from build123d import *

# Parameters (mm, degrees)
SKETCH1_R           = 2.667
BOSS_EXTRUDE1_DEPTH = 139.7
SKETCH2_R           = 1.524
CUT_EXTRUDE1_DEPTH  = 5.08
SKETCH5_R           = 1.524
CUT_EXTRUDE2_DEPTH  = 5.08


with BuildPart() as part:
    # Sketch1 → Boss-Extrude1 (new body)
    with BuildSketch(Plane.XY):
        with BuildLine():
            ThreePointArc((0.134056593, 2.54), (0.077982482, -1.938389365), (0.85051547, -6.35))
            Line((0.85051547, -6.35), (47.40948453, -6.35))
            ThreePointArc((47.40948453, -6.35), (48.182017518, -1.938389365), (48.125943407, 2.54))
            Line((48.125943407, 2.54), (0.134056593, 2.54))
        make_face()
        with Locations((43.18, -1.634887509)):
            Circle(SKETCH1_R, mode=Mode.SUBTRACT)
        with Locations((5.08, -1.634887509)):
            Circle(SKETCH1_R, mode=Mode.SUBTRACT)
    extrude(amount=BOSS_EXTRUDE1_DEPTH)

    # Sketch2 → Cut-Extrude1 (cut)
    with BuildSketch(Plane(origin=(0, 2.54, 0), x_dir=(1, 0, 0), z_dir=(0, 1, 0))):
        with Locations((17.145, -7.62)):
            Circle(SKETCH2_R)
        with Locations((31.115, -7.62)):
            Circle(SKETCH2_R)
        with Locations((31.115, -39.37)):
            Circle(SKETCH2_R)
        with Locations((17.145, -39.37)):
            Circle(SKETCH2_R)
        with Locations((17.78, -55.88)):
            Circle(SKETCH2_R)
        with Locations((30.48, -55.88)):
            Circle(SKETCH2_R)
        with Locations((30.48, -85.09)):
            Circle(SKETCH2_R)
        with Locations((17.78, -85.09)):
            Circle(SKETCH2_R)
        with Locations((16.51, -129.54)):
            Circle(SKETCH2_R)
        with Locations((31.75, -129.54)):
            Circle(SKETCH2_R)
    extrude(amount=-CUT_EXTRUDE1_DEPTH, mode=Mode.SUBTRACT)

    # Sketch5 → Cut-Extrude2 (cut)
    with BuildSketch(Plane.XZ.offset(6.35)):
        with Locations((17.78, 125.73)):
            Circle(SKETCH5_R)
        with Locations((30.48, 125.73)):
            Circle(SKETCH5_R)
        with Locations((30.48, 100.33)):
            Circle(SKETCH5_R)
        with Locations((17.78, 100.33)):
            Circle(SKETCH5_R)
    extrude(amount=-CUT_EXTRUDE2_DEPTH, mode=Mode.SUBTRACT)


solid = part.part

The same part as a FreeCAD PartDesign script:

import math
import FreeCAD as App
import Part
import Sketcher

V = App.Vector
Q = App.Units.Quantity

doc = App.newDocument("Part")
body = doc.addObject("PartDesign::Body", "Body")

# Sketch on XY plane
sketch1 = body.newObject("Sketcher::SketchObject", "Sketch")
sketch1.AttachmentSupport = (doc.getObject("XY_Plane"), [""])
sketch1.MapMode = "FlatFace"
sketch1.addGeometry(Part.ArcOfCircle(Part.Circle(V(24.1, 0, 0), V(0, 0, 1), 24.1), math.radians(174), math.radians(195)), False)
sketch1.addGeometry(Part.LineSegment(V(0.9, -6.3, 0), V(47.4, -6.3, 0)), False)
sketch1.addGeometry(Part.ArcOfCircle(Part.Circle(V(24.1, 0, 0), V(0, 0, 1), 24.1), math.radians(-15), math.radians(6)), False)
sketch1.addGeometry(Part.LineSegment(V(48.1, 2.5, 0), V(0.1, 2.5, 0)), False)
sketch1.addGeometry(Part.Circle(V(5.1, -1.6, 0), V(0, 0, 1), 2.7), False)
sketch1.addGeometry(Part.Circle(V(43.2, -1.6, 0), V(0, 0, 1), 2.7), False)
sketch1.addConstraint(Sketcher.Constraint("Coincident", 0, 2, 1, 1))
sketch1.addConstraint(Sketcher.Constraint("Coincident", 1, 2, 2, 1))
sketch1.addConstraint(Sketcher.Constraint("Coincident", 2, 2, 3, 1))
sketch1.addConstraint(Sketcher.Constraint("Coincident", 3, 2, 0, 1))
sketch1.addConstraint(Sketcher.Constraint("Horizontal", 1))
sketch1.addConstraint(Sketcher.Constraint("Horizontal", 3))
sketch1.addConstraint(Sketcher.Constraint("Coincident", 2, 3, 0, 3))
sketch1.addConstraint(Sketcher.Constraint("Equal", 0, 2))
sketch1.addConstraint(Sketcher.Constraint("Equal", 4, 5))
sketch1.addConstraint(Sketcher.Constraint("PointOnObject", 0, 3, -1))
sketch1.addConstraint(Sketcher.Constraint("Horizontal", 4, 3, 5, 3))
sketch1.addConstraint(Sketcher.Constraint("Diameter", 4, Q("0.21 in")))
sketch1.addConstraint(Sketcher.Constraint("Radius", 0, Q("0.95 in")))
sketch1.addConstraint(Sketcher.Constraint("DistanceX", -1, 1, 4, 3, Q("0.2 in")))
sketch1.addConstraint(Sketcher.Constraint("DistanceX", -1, 1, 5, 3, Q("1.7 in")))
sketch1.addConstraint(Sketcher.Constraint("DistanceY", -1, 1, 2, 2, Q("0.1 in")))
sketch1.addConstraint(Sketcher.Constraint("DistanceX", -1, 1, 0, 3, Q("0.95 in")))
sketch1.addConstraint(Sketcher.Constraint("DistanceY", 0, 2, -1, 1, Q("0.25 in")))
sketch1.addConstraint(Sketcher.Constraint("DistanceY", 4, 3, -1, 1, 1.634888))
pad1 = body.newObject("PartDesign::Pad", "Pad")
pad1.Profile = sketch1
pad1.Length = Q("5.5 in")

# Sketch on XZ plane
sketch2 = body.newObject("Sketcher::SketchObject", "Sketch001")
sketch2.AttachmentSupport = (doc.getObject("XZ_Plane"), [""])
sketch2.MapMode = "FlatFace"
sketch2.AttachmentOffset = App.Placement(V(0, 0, -0.1 * 25.4), App.Rotation())
sketch2.addGeometry(Part.Circle(V(17.1, 7.6, 0), V(0, 0, 1), 1.5), False)
sketch2.addGeometry(Part.Circle(V(31.1, 7.6, 0), V(0, 0, 1), 1.5), False)
sketch2.addGeometry(Part.Circle(V(31.1, 39.4, 0), V(0, 0, 1), 1.5), False)
sketch2.addGeometry(Part.Circle(V(17.1, 39.4, 0), V(0, 0, 1), 1.5), False)
sketch2.addGeometry(Part.Circle(V(17.8, 55.9, 0), V(0, 0, 1), 1.5), False)
sketch2.addGeometry(Part.Circle(V(30.5, 55.9, 0), V(0, 0, 1), 1.5), False)
sketch2.addGeometry(Part.Circle(V(30.5, 85.1, 0), V(0, 0, 1), 1.5), False)
sketch2.addGeometry(Part.Circle(V(17.8, 85.1, 0), V(0, 0, 1), 1.5), False)
sketch2.addGeometry(Part.Circle(V(16.5, 129.5, 0), V(0, 0, 1), 1.5), False)
sketch2.addGeometry(Part.Circle(V(31.8, 129.5, 0), V(0, 0, 1), 1.5), False)
sketch2.addConstraint(Sketcher.Constraint("Equal", 0, 1))
sketch2.addConstraint(Sketcher.Constraint("Equal", 1, 2))
sketch2.addConstraint(Sketcher.Constraint("Equal", 2, 3))
sketch2.addConstraint(Sketcher.Constraint("Equal", 3, 4))
sketch2.addConstraint(Sketcher.Constraint("Equal", 4, 5))
sketch2.addConstraint(Sketcher.Constraint("Equal", 5, 6))
sketch2.addConstraint(Sketcher.Constraint("Equal", 6, 7))
sketch2.addConstraint(Sketcher.Constraint("Equal", 7, 8))
sketch2.addConstraint(Sketcher.Constraint("Equal", 8, 9))
sketch2.addConstraint(Sketcher.Constraint("Horizontal", 0, 3, 1, 3))
sketch2.addConstraint(Sketcher.Constraint("Horizontal", 2, 3, 3, 3))
sketch2.addConstraint(Sketcher.Constraint("Horizontal", 4, 3, 5, 3))
sketch2.addConstraint(Sketcher.Constraint("Horizontal", 6, 3, 7, 3))
sketch2.addConstraint(Sketcher.Constraint("Horizontal", 8, 3, 9, 3))
sketch2.addConstraint(Sketcher.Constraint("Vertical", 1, 3, 2, 3))
sketch2.addConstraint(Sketcher.Constraint("Vertical", 0, 3, 3, 3))
sketch2.addConstraint(Sketcher.Constraint("Vertical", 5, 3, 6, 3))
sketch2.addConstraint(Sketcher.Constraint("Vertical", 4, 3, 7, 3))
sketch2.addConstraint(Sketcher.Constraint("Diameter", 0, Q("0.12 in")))
sketch2.addConstraint(Sketcher.Constraint("DistanceY", -1, 1, 0, 3, Q("0.3 in")))
sketch2.addConstraint(Sketcher.Constraint("DistanceX", -1, 1, 4, 3, Q("0.7 in")))
sketch2.addConstraint(Sketcher.Constraint("DistanceY", -1, 1, 4, 3, Q("2.2 in")))
sketch2.addConstraint(Sketcher.Constraint("DistanceX", -1, 1, 5, 3, Q("1.2 in")))
sketch2.addConstraint(Sketcher.Constraint("DistanceY", -1, 1, 8, 3, Q("5.1 in")))
sketch2.addConstraint(Sketcher.Constraint("DistanceY", 2, 3, 6, 3, Q("1.8 in")))
sketch2.addConstraint(Sketcher.Constraint("DistanceX", 8, 3, 9, 3, Q("0.6 in")))
sketch2.addConstraint(Sketcher.Constraint("DistanceY", -1, 1, 2, 3, Q("1.55 in")))
sketch2.addConstraint(Sketcher.Constraint("DistanceX", -1, 1, 8, 3, Q("0.65 in")))
sketch2.addConstraint(Sketcher.Constraint("DistanceX", 0, 3, 1, 3, Q("0.55 in")))
sketch2.addConstraint(Sketcher.Constraint("DistanceX", -1, 1, 0, 3, Q("0.675 in")))
pocket1 = body.newObject("PartDesign::Pocket", "Pocket")
pocket1.Profile = sketch2
pocket1.Length = Q("0.2 in")
pocket1.Reversed = True

# Sketch on XZ plane
sketch3 = body.newObject("Sketcher::SketchObject", "Sketch002")
sketch3.AttachmentSupport = (doc.getObject("XZ_Plane"), [""])
sketch3.MapMode = "FlatFace"
sketch3.AttachmentOffset = App.Placement(V(0, 0, 0.25 * 25.4), App.Rotation())
sketch3.addGeometry(Part.Circle(V(17.8, 125.7, 0), V(0, 0, 1), 1.5), False)
sketch3.addGeometry(Part.Circle(V(30.5, 125.7, 0), V(0, 0, 1), 1.5), False)
sketch3.addGeometry(Part.Circle(V(30.5, 100.3, 0), V(0, 0, 1), 1.5), False)
sketch3.addGeometry(Part.Circle(V(17.8, 100.3, 0), V(0, 0, 1), 1.5), False)
sketch3.addConstraint(Sketcher.Constraint("Equal", 0, 1))
sketch3.addConstraint(Sketcher.Constraint("Equal", 1, 2))
sketch3.addConstraint(Sketcher.Constraint("Equal", 2, 3))
sketch3.addConstraint(Sketcher.Constraint("Horizontal", 0, 3, 1, 3))
sketch3.addConstraint(Sketcher.Constraint("Horizontal", 2, 3, 3, 3))
sketch3.addConstraint(Sketcher.Constraint("Vertical", 1, 3, 2, 3))
sketch3.addConstraint(Sketcher.Constraint("Vertical", 0, 3, 3, 3))
sketch3.addConstraint(Sketcher.Constraint("Diameter", 0, Q("0.12 in")))
sketch3.addConstraint(Sketcher.Constraint("DistanceY", 2, 3, 1, 3, Q("1 in")))
sketch3.addConstraint(Sketcher.Constraint("DistanceX", -1, 1, 0, 3, Q("0.7 in")))
sketch3.addConstraint(Sketcher.Constraint("DistanceX", -1, 1, 1, 3, Q("1.2 in")))
sketch3.addConstraint(Sketcher.Constraint("DistanceY", -1, 1, 0, 3, Q("4.95 in")))
pocket2 = body.newObject("PartDesign::Pocket", "Pocket001")
pocket2.Profile = sketch3
pocket2.Length = Q("0.2 in")

doc.recompute()
